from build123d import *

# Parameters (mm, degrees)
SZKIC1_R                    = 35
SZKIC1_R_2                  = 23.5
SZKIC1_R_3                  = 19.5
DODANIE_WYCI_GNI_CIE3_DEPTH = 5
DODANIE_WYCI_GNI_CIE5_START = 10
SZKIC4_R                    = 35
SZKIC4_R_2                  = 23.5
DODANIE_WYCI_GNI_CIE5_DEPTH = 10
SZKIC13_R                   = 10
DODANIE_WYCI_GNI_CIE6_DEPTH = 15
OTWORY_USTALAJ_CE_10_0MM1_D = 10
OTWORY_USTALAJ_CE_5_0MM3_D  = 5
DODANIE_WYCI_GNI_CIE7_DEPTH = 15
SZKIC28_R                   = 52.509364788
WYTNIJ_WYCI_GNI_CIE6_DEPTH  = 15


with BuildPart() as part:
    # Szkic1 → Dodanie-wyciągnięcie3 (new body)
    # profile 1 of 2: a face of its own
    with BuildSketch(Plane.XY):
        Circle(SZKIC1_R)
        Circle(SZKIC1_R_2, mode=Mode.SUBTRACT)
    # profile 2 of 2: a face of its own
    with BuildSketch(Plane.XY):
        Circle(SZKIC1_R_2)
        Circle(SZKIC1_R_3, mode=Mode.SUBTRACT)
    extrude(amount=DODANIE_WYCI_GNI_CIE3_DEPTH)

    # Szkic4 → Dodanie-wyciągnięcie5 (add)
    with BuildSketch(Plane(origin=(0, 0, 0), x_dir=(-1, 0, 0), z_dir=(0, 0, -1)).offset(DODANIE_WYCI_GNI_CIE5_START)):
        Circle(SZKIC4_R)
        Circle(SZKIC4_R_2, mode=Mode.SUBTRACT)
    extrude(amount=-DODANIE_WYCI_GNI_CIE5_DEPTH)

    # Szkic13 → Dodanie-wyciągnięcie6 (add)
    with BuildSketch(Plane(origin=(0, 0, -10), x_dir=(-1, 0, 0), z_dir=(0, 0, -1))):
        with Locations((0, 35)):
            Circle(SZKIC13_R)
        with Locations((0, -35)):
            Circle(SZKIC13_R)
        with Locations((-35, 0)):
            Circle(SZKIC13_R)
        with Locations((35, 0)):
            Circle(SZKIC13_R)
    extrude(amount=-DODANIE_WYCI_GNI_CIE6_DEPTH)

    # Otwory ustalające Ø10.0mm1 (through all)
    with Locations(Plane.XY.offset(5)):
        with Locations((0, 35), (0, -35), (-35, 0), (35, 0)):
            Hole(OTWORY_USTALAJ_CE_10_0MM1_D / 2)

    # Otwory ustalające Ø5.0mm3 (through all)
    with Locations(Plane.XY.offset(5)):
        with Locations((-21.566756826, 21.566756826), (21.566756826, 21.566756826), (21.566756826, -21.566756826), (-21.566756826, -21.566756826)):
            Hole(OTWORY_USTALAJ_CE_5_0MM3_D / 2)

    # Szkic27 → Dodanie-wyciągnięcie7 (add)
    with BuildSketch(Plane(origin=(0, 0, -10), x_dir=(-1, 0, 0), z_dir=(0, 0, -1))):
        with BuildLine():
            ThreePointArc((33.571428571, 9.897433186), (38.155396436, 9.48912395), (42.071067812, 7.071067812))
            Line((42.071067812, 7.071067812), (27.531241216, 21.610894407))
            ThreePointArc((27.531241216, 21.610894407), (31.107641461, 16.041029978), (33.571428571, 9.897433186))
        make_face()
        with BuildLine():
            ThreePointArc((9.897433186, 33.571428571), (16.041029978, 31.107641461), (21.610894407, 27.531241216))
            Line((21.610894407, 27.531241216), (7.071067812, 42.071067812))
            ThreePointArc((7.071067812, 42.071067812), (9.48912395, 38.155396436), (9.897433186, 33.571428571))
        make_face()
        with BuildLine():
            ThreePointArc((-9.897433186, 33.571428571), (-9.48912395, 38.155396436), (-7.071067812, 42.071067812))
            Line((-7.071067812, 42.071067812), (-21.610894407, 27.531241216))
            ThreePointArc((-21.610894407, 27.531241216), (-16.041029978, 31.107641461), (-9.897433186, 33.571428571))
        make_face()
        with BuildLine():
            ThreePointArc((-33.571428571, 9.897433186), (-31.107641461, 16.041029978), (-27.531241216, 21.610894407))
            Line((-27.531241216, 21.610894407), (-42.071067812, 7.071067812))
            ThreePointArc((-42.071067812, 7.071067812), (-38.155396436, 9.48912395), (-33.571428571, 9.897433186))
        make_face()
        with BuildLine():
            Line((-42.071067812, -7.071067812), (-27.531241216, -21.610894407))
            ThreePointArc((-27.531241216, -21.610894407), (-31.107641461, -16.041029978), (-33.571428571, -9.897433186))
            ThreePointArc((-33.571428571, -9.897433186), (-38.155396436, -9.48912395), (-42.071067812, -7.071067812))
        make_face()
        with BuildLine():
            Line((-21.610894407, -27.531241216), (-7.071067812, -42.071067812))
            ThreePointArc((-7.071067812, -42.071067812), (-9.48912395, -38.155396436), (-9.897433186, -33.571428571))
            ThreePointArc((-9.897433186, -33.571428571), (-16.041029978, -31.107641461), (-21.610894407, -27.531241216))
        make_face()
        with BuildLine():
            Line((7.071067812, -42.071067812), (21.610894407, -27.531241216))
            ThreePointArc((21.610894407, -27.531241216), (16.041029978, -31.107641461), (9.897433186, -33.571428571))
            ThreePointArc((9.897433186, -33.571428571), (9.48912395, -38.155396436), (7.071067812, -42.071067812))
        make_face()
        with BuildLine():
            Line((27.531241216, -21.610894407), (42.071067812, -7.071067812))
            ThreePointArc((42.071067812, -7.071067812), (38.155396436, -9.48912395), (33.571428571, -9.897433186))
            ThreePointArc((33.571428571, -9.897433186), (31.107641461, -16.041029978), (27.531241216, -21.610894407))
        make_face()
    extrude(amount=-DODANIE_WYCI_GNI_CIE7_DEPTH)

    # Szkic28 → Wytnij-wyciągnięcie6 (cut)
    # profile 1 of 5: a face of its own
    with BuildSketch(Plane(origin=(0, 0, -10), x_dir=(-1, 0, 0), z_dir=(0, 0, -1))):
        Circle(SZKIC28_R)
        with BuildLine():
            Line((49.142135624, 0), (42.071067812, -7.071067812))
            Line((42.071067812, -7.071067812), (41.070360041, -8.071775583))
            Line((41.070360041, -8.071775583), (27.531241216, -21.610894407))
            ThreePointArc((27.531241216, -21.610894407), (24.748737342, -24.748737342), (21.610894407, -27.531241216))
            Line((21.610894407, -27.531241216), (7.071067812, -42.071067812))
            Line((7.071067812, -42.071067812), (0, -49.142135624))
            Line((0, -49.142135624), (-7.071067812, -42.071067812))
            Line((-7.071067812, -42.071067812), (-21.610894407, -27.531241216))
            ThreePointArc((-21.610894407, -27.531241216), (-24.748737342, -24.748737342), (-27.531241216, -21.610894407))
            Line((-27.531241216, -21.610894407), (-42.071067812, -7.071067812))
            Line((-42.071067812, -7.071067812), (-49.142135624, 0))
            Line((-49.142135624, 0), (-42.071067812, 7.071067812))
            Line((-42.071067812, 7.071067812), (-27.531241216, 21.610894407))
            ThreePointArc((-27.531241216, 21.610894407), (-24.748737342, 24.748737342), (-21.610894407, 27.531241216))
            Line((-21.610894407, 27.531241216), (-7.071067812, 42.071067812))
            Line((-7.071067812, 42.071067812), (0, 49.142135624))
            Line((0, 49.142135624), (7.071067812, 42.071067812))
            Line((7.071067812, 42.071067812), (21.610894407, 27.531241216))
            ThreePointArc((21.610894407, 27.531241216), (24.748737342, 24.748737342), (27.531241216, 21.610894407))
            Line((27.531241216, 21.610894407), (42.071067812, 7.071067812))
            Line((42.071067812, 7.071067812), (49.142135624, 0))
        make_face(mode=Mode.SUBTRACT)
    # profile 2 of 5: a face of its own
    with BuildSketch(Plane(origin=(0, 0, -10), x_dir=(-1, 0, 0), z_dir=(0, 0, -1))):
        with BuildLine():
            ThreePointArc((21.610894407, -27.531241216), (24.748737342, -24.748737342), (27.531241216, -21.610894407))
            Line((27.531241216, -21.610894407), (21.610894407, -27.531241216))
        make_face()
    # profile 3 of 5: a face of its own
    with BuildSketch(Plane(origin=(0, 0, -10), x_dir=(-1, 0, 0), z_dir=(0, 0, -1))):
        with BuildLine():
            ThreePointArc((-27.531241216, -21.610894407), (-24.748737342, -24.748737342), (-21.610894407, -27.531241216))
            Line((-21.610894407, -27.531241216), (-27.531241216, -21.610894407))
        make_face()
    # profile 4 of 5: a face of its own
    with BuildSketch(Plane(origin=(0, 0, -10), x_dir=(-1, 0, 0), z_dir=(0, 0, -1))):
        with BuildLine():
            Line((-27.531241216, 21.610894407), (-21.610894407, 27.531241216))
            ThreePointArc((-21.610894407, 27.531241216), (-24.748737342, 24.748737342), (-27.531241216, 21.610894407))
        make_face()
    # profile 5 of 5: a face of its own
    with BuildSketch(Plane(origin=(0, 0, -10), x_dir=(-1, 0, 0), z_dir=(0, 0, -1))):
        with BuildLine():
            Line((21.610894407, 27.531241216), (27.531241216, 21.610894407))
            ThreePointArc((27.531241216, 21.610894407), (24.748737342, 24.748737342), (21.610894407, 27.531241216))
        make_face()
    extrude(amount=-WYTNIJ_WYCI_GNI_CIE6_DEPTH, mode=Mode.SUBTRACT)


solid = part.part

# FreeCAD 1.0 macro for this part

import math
import FreeCAD as App
import Part
import Sketcher
Q = App.Units.Quantity


def add_polygon(sketch, points):
    """Adds a closed chain of lines whose ends are joined by coincident constraints."""
    first, n = sketch.GeometryCount, len(points)
    for a, b in zip(points, points[1:] + points[:1]):
        sketch.addGeometry(Part.LineSegment(App.Vector(*a, 0), App.Vector(*b, 0)), False)
    for i in range(n):
        sketch.addConstraint(Sketcher.Constraint("Coincident", first + i, 2, first + (i + 1) % n, 1))

doc = App.newDocument("Part")
body = doc.addObject("PartDesign::Body", "Body")

sketch1 = body.newObject("Sketcher::SketchObject", "Sketch")
sketch1.AttachmentSupport = (doc.getObject("XY_Plane"), [""])
sketch1.MapMode = "FlatFace"
sketch1.addGeometry([
    Part.Circle(App.Vector(0, 0, 0), App.Vector(0, 0, 1), 35),
    Part.Circle(App.Vector(0, 0, 0), App.Vector(0, 0, 1), 20),
], False)
sketch1.addConstraint([
    Sketcher.Constraint("Coincident", 0, 3, -1, 1),
    Sketcher.Constraint("Coincident", 1, 3, -1, 1),
    Sketcher.Constraint("Diameter", 0, Q("70 mm")),
    Sketcher.Constraint("Diameter", 1, Q("39 mm")),
])
pad1 = body.newObject("PartDesign::Pad", "Pad")
pad1.Profile = sketch1
pad1.Length = 5

sketch2 = body.newObject("Sketcher::SketchObject", "Sketch001")
sketch2.AttachmentSupport = (doc.getObject("XY_Plane"), [""])
sketch2.MapMode = "FlatFace"
sketch2.AttachmentOffset = App.Placement(App.Vector(0, 0, -10), App.Rotation())
sketch2.addGeometry([
    Part.Circle(App.Vector(0, 0, 0), App.Vector(0, 0, 1), 35),
    Part.Circle(App.Vector(0, 0, 0), App.Vector(0, 0, 1), 24),
], False)
sketch2.addConstraint([
    Sketcher.Constraint("Coincident", 0, 3, -1, 1),
    Sketcher.Constraint("Coincident", 1, 3, -1, 1),
    Sketcher.Constraint("Diameter", 0, Q("70 mm")),
    Sketcher.Constraint("Diameter", 1, Q("47 mm")),
])
pad2 = body.newObject("PartDesign::Pad", "Pad001")
pad2.Profile = sketch2
pad2.Length = 10

sketch3 = body.newObject("Sketcher::SketchObject", "Sketch002")
sketch3.AttachmentSupport = (doc.getObject("XY_Plane"), [""])
sketch3.MapMode = "FlatFace"
sketch3.AttachmentOffset = App.Placement(App.Vector(0, 0, -10), App.Rotation())
sketch3.addGeometry([
    Part.Circle(App.Vector(0, 35, 0), App.Vector(0, 0, 1), 10),
    Part.Circle(App.Vector(0, -35, 0), App.Vector(0, 0, 1), 10),
    Part.Circle(App.Vector(35, 0, 0), App.Vector(0, 0, 1), 10),
    Part.Circle(App.Vector(-35, 0, 0), App.Vector(0, 0, 1), 10),
], False)
sketch3.addConstraint([
    Sketcher.Constraint("Equal", 0, 1),
    Sketcher.Constraint("Equal", 1, 2),
    Sketcher.Constraint("Equal", 2, 3),
    Sketcher.Constraint("Symmetric", 0, 3, 1, 3, -1, 1),
    Sketcher.Constraint("Symmetric", 2, 3, 3, 3, -1, 1),
    Sketcher.Constraint("PointOnObject", 0, 3, -2),
    Sketcher.Constraint("PointOnObject", 2, 3, -1),
    Sketcher.Constraint("Diameter", 0, Q("20 mm")),
    Sketcher.Constraint("DistanceY", -1, 1, 0, 3, Q("35 mm")),
    Sketcher.Constraint("DistanceX", -1, 1, 2, 3, Q("35 mm")),
])
pad3 = body.newObject("PartDesign::Pad", "Pad002")
pad3.Profile = sketch3
pad3.Length = 15

sketch4 = body.newObject("Sketcher::SketchObject", "Sketch003")
sketch4.AttachmentSupport = (doc.getObject("XY_Plane"), [""])
sketch4.MapMode = "FlatFace"
sketch4.AttachmentOffset = App.Placement(App.Vector(0, 0, 5), App.Rotation())
sketch4.addGeometry([
    Part.Circle(App.Vector(0, 35, 0), App.Vector(0, 0, 1), 5),
    Part.Circle(App.Vector(0, -35, 0), App.Vector(0, 0, 1), 5),
    Part.Circle(App.Vector(-35, 0, 0), App.Vector(0, 0, 1), 5),
    Part.Circle(App.Vector(35, 0, 0), App.Vector(0, 0, 1), 5),
], False)
sketch4.addConstraint([
    Sketcher.Constraint("Equal", 0, 1),
    Sketcher.Constraint("Equal", 1, 2),
    Sketcher.Constraint("Equal", 2, 3),
    Sketcher.Constraint("Symmetric", 0, 3, 1, 3, -1, 1),
    Sketcher.Constraint("Symmetric", 2, 3, 3, 3, -1, 1),
    Sketcher.Constraint("PointOnObject", 0, 3, -2),
    Sketcher.Constraint("PointOnObject", 2, 3, -1),
    Sketcher.Constraint("Diameter", 0, Q("10 mm")),
    Sketcher.Constraint("DistanceY", -1, 1, 0, 3, Q("35 mm")),
    Sketcher.Constraint("DistanceX", 2, 3, -1, 1, Q("35 mm")),
])
doc.recompute()
hole = body.newObject("PartDesign::Hole", "Hole")
hole.Profile = sketch4
hole.ThreadType = "None"
hole.Diameter = 10
hole.DepthType = "ThroughAll"

sketch5 = body.newObject("Sketcher::SketchObject", "Sketch004")
sketch5.AttachmentSupport = (doc.getObject("XY_Plane"), [""])
sketch5.MapMode = "FlatFace"
sketch5.AttachmentOffset = App.Placement(App.Vector(0, 0, 5), App.Rotation())
sketch5.addGeometry([
    Part.Circle(App.Vector(-21.6, 21.6, 0), App.Vector(0, 0, 1), 2.5),
    Part.Circle(App.Vector(21.6, 21.6, 0), App.Vector(0, 0, 1), 2.5),
    Part.Circle(App.Vector(21.6, -21.6, 0), App.Vector(0, 0, 1), 2.5),
    Part.Circle(App.Vector(-21.6, -21.6, 0), App.Vector(0, 0, 1), 2.5),
], False)
sketch5.addConstraint([
    Sketcher.Constraint("Equal", 0, 1),
    Sketcher.Constraint("Equal", 1, 2),
    Sketcher.Constraint("Equal", 2, 3),
    Sketcher.Constraint("Symmetric", 0, 3, 2, 3, -1, 1),
    Sketcher.Constraint("Symmetric", 1, 3, 3, 3, -1, 1),
    Sketcher.Constraint("Symmetric", 0, 3, 1, 3, -2),
    Sketcher.Constraint("Diameter", 0, Q("5 mm")),
    Sketcher.Constraint("DistanceX", 0, 3, -1, 1, Q("21.566757 mm")),
    Sketcher.Constraint("DistanceY", -1, 1, 0, 3, Q("21.566757 mm")),
])
doc.recompute()
hole2 = body.newObject("PartDesign::Hole", "Hole001")
hole2.Profile = sketch5
hole2.ThreadType = "None"
hole2.Diameter = 5
hole2.DepthType = "ThroughAll"

sketch6 = body.newObject("Sketcher::SketchObject", "Sketch005")
sketch6.AttachmentSupport = (doc.getObject("XY_Plane"), [""])
sketch6.MapMode = "FlatFace"
sketch6.AttachmentOffset = App.Placement(App.Vector(0, 0, -10), App.Rotation())
sketch6.addGeometry([
    Part.ArcOfCircle(Part.Circle(App.Vector(-35, 0, 0), App.Vector(0, 0, 1), 10), math.radians(82), math.radians(135)),
    Part.LineSegment(App.Vector(-42, 7, 0), App.Vector(-28, 22, 0)),
    Part.ArcOfCircle(Part.Circle(App.Vector(0, 0, 0), App.Vector(0, 0, 1), 35), math.radians(142), math.radians(164)),
    Part.ArcOfCircle(Part.Circle(App.Vector(0, 0, 0), App.Vector(0, 0, 1), 35), math.radians(106), math.radians(128)),
    Part.LineSegment(App.Vector(-22, 28, 0), App.Vector(-7, 42, 0)),
    Part.ArcOfCircle(Part.Circle(App.Vector(0, 35, 0), App.Vector(0, 0, 1), 10), math.radians(135), math.radians(188)),
    Part.ArcOfCircle(Part.Circle(App.Vector(0, 35, 0), App.Vector(0, 0, 1), 10), math.radians(-8), math.radians(45)),
    Part.LineSegment(App.Vector(7, 42, 0), App.Vector(22, 28, 0)),
    Part.ArcOfCircle(Part.Circle(App.Vector(0, 0, 0), App.Vector(0, 0, 1), 35), math.radians(52), math.radians(74)),
    Part.ArcOfCircle(Part.Circle(App.Vector(0, 0, 0), App.Vector(0, 0, 1), 35), math.radians(16), math.radians(38)),
    Part.LineSegment(App.Vector(28, 22, 0), App.Vector(42, 7, 0)),
    Part.ArcOfCircle(Part.Circle(App.Vector(35, 0, 0), App.Vector(0, 0, 1), 10), math.radians(45), math.radians(98)),
    Part.LineSegment(App.Vector(42, -7, 0), App.Vector(28, -22, 0)),
    Part.ArcOfCircle(Part.Circle(App.Vector(0, 0, 0), App.Vector(0, 0, 1), 35), math.radians(-38), math.radians(-16)),
    Part.ArcOfCircle(Part.Circle(App.Vector(35, 0, 0), App.Vector(0, 0, 1), 10), math.radians(-98), math.radians(-45)),
    Part.LineSegment(App.Vector(22, -28, 0), App.Vector(7, -42, 0)),
    Part.ArcOfCircle(Part.Circle(App.Vector(0, -35, 0), App.Vector(0, 0, 1), 10), math.radians(-45), math.radians(8)),
    Part.ArcOfCircle(Part.Circle(App.Vector(0, 0, 0), App.Vector(0, 0, 1), 35), math.radians(-74), math.radians(-52)),
    Part.LineSegment(App.Vector(-7, -42, 0), App.Vector(-22, -28, 0)),
    Part.ArcOfCircle(Part.Circle(App.Vector(0, 0, 0), App.Vector(0, 0, 1), 35), math.radians(-128), math.radians(-106)),
    Part.ArcOfCircle(Part.Circle(App.Vector(0, -35, 0), App.Vector(0, 0, 1), 10), math.radians(172), math.radians(225)),
    Part.LineSegment(App.Vector(-28, -22, 0), App.Vector(-42, -7, 0)),
    Part.ArcOfCircle(Part.Circle(App.Vector(-35, 0, 0), App.Vector(0, 0, 1), 10), math.radians(-135), math.radians(-82)),
    Part.ArcOfCircle(Part.Circle(App.Vector(0, 0, 0), App.Vector(0, 0, 1), 35), math.radians(-164), math.radians(-142)),
], False)
sketch6.addConstraint([
    Sketcher.Constraint("Tangent", 0, 2, 1, 1),
    Sketcher.Constraint("Coincident", 1, 2, 2, 1),
    Sketcher.Constraint("Coincident", 2, 2, 0, 1),
    Sketcher.Constraint("Coincident", 3, 2, 4, 1),
    Sketcher.Constraint("Tangent", 4, 2, 5, 1),
    Sketcher.Constraint("Coincident", 5, 2, 3, 1),
    Sketcher.Constraint("Tangent", 6, 2, 7, 1),
    Sketcher.Constraint("Coincident", 7, 2, 8, 1),
    Sketcher.Constraint("Coincident", 8, 2, 6, 1),
    Sketcher.Constraint("Coincident", 9, 2, 10, 1),
    Sketcher.Constraint("Tangent", 10, 2, 11, 1),
    Sketcher.Constraint("Coincident", 11, 2, 9, 1),
    Sketcher.Constraint("Coincident", 12, 2, 13, 1),
    Sketcher.Constraint("Coincident", 13, 2, 14, 1),
    Sketcher.Constraint("Tangent", 14, 2, 12, 1),
    Sketcher.Constraint("Tangent", 15, 2, 16, 1),
    Sketcher.Constraint("Coincident", 16, 2, 17, 1),
    Sketcher.Constraint("Coincident", 17, 2, 15, 1),
    Sketcher.Constraint("Coincident", 18, 2, 19, 1),
    Sketcher.Constraint("Coincident", 19, 2, 20, 1),
    Sketcher.Constraint("Tangent", 20, 2, 18, 1),
    Sketcher.Constraint("Tangent", 21, 2, 22, 1),
    Sketcher.Constraint("Coincident", 22, 2, 23, 1),
    Sketcher.Constraint("Coincident", 23, 2, 21, 1),
    Sketcher.Constraint("Coincident", 2, 3, -1, 1),
    Sketcher.Constraint("Coincident", 3, 3, -1, 1),
    Sketcher.Constraint("Coincident", 8, 3, -1, 1),
    Sketcher.Constraint("Coincident", 9, 3, -1, 1),
    Sketcher.Constraint("Coincident", 13, 3, -1, 1),
    Sketcher.Constraint("Coincident", 17, 3, -1, 1),
    Sketcher.Constraint("Coincident", 19, 3, -1, 1),
    Sketcher.Constraint("Coincident", 23, 3, -1, 1),
    Sketcher.Constraint("Coincident", 6, 3, 5, 3),
    Sketcher.Constraint("Coincident", 14, 3, 11, 3),
    Sketcher.Constraint("Coincident", 20, 3, 16, 3),
    Sketcher.Constraint("Coincident", 22, 3, 0, 3),
    Sketcher.Constraint("Equal", 2, 3),
    Sketcher.Constraint("Equal", 0, 5),
    Sketcher.Constraint("Equal", 5, 6),
    Sketcher.Constraint("Equal", 3, 8),
    Sketcher.Constraint("Equal", 8, 9),
    Sketcher.Constraint("Equal", 6, 11),
    Sketcher.Constraint("Equal", 9, 13),
    Sketcher.Constraint("Equal", 11, 14),
    Sketcher.Constraint("Equal", 14, 16),
    Sketcher.Constraint("Equal", 13, 17),
    Sketcher.Constraint("Equal", 17, 19),
    Sketcher.Constraint("Equal", 16, 20),
    Sketcher.Constraint("Equal", 20, 22),
    Sketcher.Constraint("Equal", 19, 23),
    Sketcher.Constraint("Symmetric", 0, 3, 11, 3, -1, 1),
    Sketcher.Constraint("Symmetric", 5, 3, 16, 3, -1, 1),
    Sketcher.Constraint("Symmetric", 4, 2, 6, 2, -2),
    Sketcher.Constraint("Symmetric", 0, 2, 10, 2, -2),
    Sketcher.Constraint("Parallel", 1, 4),
    Sketcher.Constraint("Perpendicular", 4, 7),
    Sketcher.Constraint("Perpendicular", 10, 12),
    Sketcher.Constraint("Parallel", 12, 15),
    Sketcher.Constraint("Perpendicular", 15, 18),
    Sketcher.Constraint("Parallel", 18, 21),
    Sketcher.Constraint("Equal", 1, 4),
    Sketcher.Constraint("Radius", 0, Q("10 mm")),
    Sketcher.Constraint("Radius", 2, Q("35 mm")),
    Sketcher.Constraint("DistanceX", 0, 3, -1, 1, Q("35 mm")),
])
pad4 = body.newObject("PartDesign::Pad", "Pad003")
pad4.Profile = sketch6
pad4.Length = 15

sketch7 = body.newObject("Sketcher::SketchObject", "Sketch006")
sketch7.AttachmentSupport = (doc.getObject("XY_Plane"), [""])
sketch7.MapMode = "FlatFace"
sketch7.AttachmentOffset = App.Placement(App.Vector(0, 0, -10), App.Rotation())
sketch7.addGeometry(Part.Circle(App.Vector(0, 0, 0), App.Vector(0, 0, 1), 53), False)
add_polygon(sketch7, [(-42, 7), (-49, 0), (-41, -8), (-28, -22), (-22, -28), (-7, -42), (0, -49), (7, -42), (22, -28), (28, -22), (42, -7), (49, 0), (42, 7), (28, 22), (22, 28), (7, 42), (0, 49), (-7, 42), (-22, 28), (-28, 22)])
sketch7.addConstraint([
    Sketcher.Constraint("Coincident", 0, 3, -1, 1),
    Sketcher.Constraint("Symmetric", 1, 2, 11, 2, -1, 1),
    Sketcher.Constraint("Symmetric", 3, 2, 13, 2, -1, 1),
    Sketcher.Constraint("Symmetric", 4, 2, 14, 2, -1, 1),
    Sketcher.Constraint("Symmetric", 5, 2, 15, 2, -1, 1),
    Sketcher.Constraint("Symmetric", 6, 2, 16, 2, -1, 1),
    Sketcher.Constraint("Symmetric", 7, 2, 17, 2, -1, 1),
    Sketcher.Constraint("Symmetric", 8, 2, 18, 2, -1, 1),
    Sketcher.Constraint("Symmetric", 9, 2, 19, 2, -1, 1),
    Sketcher.Constraint("Symmetric", 10, 2, 20, 2, -1, 1),
    Sketcher.Constraint("Symmetric", 5, 2, 7, 2, -2),
    Sketcher.Constraint("Symmetric", 4, 2, 8, 2, -2),
    Sketcher.Constraint("Symmetric", 3, 2, 9, 2, -2),
    Sketcher.Constraint("Symmetric", 12, 2, 20, 2, -2),
    Sketcher.Constraint("PointOnObject", 1, 2, -1),
    Sketcher.Constraint("PointOnObject", 6, 2, -2),
    Sketcher.Constraint("Perpendicular", 1, 2),
    Sketcher.Constraint("Parallel", 2, 3),
    Sketcher.Constraint("Parallel", 3, 4),
    Sketcher.Constraint("Parallel", 4, 5),
    Sketcher.Constraint("Parallel", 5, 6),
    Sketcher.Constraint("Perpendicular", 6, 7),
    Sketcher.Constraint("Equal", 1, 6),
    Sketcher.Constraint("Equal", 8, 10),
    Sketcher.Constraint("Distance", 1, Q("10 mm")),
    Sketcher.Constraint("DistanceX", 7, 2, 10, 2, Q("35 mm")),
    Sketcher.Constraint("Diameter", 0, Q("105.01873 mm")),
    Sketcher.Constraint("Distance", 5, Q("20.56242 mm")),
    Sketcher.Constraint("DistanceX", 2, 2, -1, 1, Q("41.07036 mm")),
])
pocket1 = body.newObject("PartDesign::Pocket", "Pocket")
pocket1.Profile = sketch7
pocket1.Length = 15
pocket1.Reversed = True

doc.recompute()
